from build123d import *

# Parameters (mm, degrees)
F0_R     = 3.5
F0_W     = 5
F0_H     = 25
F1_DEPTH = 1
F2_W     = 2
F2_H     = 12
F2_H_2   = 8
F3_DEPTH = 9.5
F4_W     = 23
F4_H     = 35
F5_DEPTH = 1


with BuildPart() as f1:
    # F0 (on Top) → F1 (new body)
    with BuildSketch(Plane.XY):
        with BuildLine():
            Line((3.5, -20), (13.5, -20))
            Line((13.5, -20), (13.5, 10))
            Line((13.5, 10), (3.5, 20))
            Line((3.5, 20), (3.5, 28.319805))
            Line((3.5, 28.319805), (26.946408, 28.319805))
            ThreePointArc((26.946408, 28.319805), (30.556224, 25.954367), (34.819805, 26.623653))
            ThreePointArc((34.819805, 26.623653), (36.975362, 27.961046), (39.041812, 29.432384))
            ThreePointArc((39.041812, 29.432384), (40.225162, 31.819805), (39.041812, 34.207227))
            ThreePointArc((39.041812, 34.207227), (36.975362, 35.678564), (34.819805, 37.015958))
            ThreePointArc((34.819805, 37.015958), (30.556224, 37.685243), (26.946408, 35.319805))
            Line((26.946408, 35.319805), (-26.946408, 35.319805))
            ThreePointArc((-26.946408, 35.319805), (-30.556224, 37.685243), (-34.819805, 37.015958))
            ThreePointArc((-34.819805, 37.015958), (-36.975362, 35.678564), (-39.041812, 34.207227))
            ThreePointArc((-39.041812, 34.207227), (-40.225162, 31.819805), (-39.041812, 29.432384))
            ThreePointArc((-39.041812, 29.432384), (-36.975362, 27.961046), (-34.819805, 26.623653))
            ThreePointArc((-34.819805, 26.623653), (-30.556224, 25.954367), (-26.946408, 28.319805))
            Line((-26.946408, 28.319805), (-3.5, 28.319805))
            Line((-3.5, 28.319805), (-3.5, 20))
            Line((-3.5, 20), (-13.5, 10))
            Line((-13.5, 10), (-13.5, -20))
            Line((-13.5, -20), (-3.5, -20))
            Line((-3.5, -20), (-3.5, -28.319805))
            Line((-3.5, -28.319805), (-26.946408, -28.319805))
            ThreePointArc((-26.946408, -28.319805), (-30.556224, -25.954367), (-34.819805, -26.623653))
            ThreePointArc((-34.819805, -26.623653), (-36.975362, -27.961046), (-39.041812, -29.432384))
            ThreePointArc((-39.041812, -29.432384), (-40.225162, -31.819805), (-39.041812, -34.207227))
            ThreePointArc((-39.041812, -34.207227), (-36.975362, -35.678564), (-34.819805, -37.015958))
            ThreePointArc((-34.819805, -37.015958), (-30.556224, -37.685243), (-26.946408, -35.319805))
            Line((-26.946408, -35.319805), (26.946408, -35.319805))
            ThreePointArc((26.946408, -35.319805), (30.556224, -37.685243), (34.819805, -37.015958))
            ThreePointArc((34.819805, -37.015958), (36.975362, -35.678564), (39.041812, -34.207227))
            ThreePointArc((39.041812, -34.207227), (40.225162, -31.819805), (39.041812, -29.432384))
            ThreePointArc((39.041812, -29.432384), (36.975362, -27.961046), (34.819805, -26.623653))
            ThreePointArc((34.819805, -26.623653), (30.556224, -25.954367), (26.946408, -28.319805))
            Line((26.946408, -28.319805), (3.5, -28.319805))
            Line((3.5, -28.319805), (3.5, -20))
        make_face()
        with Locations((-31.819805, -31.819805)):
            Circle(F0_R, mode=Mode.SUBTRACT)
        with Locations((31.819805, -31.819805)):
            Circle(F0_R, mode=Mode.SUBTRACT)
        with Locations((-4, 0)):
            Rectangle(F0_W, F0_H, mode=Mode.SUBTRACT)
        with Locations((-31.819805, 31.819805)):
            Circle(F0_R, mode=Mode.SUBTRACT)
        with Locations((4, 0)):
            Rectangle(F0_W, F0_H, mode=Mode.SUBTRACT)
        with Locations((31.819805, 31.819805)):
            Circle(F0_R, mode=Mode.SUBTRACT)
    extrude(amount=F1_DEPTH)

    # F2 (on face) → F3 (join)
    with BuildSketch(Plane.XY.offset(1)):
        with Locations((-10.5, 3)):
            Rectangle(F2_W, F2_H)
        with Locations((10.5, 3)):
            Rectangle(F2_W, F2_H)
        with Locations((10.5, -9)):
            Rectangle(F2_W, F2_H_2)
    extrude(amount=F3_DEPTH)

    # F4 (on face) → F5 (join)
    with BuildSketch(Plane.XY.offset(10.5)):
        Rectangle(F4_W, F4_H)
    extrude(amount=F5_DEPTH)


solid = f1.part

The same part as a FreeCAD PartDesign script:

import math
import FreeCAD as App
import Part
import Sketcher

V = App.Vector
Q = App.Units.Quantity

doc = App.newDocument("Part")
body = doc.addObject("PartDesign::Body", "Body")

# Sketch on XY plane
sketch1 = body.newObject("Sketcher::SketchObject", "Sketch")
sketch1.AttachmentSupport = (doc.getObject("XY_Plane"), [""])
sketch1.MapMode = "FlatFace"
sketch1.addGeometry(Part.LineSegment(V(3.5, -20, 0), V(13.5, -20, 0)), False)
sketch1.addGeometry(Part.LineSegment(V(13.5, -20, 0), V(13.5, 10, 0)), False)
sketch1.addGeometry(Part.LineSegment(V(13.5, 10, 0), V(3.5, 20, 0)), False)
sketch1.addGeometry(Part.LineSegment(V(3.5, 20, 0), V(3.5, 28.3, 0)), False)
sketch1.addGeometry(Part.LineSegment(V(3.5, 28.3, 0), V(26.9, 28.3, 0)), False)
sketch1.addGeometry(Part.ArcOfCircle(Part.Circle(V(31.8, 31.8, 0), V(0, 0, 1), 6), math.radians(-144), math.radians(-60)), False)
sketch1.addGeometry(Part.ArcOfCircle(Part.Circle(V(14.8, 61.3, 0), V(0, 0, 1), 40), math.radians(-60), math.radians(-52.73)), False)
sketch1.addGeometry(Part.ArcOfCircle(Part.Circle(V(37.2, 31.8, 0), V(0, 0, 1), 3), math.radians(-53), math.radians(53)), False)
sketch1.addGeometry(Part.ArcOfCircle(Part.Circle(V(14.8, 2.4, 0), V(0, 0, 1), 40), math.radians(52.73), math.radians(60)), False)
sketch1.addGeometry(Part.ArcOfCircle(Part.Circle(V(31.8, 31.8, 0), V(0, 0, 1), 6), math.radians(60), math.radians(144)), False)
sketch1.addGeometry(Part.LineSegment(V(26.9, 35.3, 0), V(-26.9, 35.3, 0)), False)
sketch1.addGeometry(Part.ArcOfCircle(Part.Circle(V(-31.8, 31.8, 0), V(0, 0, 1), 6), math.radians(36), math.radians(120)), False)
sketch1.addGeometry(Part.ArcOfCircle(Part.Circle(V(-14.8, 2.4, 0), V(0, 0, 1), 40), math.radians(120), math.radians(127.27)), False)
sketch1.addGeometry(Part.ArcOfCircle(Part.Circle(V(-37.2, 31.8, 0), V(0, 0, 1), 3), math.radians(127), math.radians(233)), False)
sketch1.addGeometry(Part.ArcOfCircle(Part.Circle(V(-14.8, 61.3, 0), V(0, 0, 1), 40), math.radians(-127.27), math.radians(-120)), False)
sketch1.addGeometry(Part.ArcOfCircle(Part.Circle(V(-31.8, 31.8, 0), V(0, 0, 1), 6), math.radians(-120), math.radians(-36)), False)
sketch1.addGeometry(Part.LineSegment(V(-26.9, 28.3, 0), V(-3.5, 28.3, 0)), False)
sketch1.addGeometry(Part.LineSegment(V(-3.5, 28.3, 0), V(-3.5, 20, 0)), False)
sketch1.addGeometry(Part.LineSegment(V(-3.5, 20, 0), V(-13.5, 10, 0)), False)
sketch1.addGeometry(Part.LineSegment(V(-13.5, 10, 0), V(-13.5, -20, 0)), False)
sketch1.addGeometry(Part.LineSegment(V(-13.5, -20, 0), V(-3.5, -20, 0)), False)
sketch1.addGeometry(Part.LineSegment(V(-3.5, -20, 0), V(-3.5, -28.3, 0)), False)
sketch1.addGeometry(Part.LineSegment(V(-3.5, -28.3, 0), V(-26.9, -28.3, 0)), False)
sketch1.addGeometry(Part.ArcOfCircle(Part.Circle(V(-31.8, -31.8, 0), V(0, 0, 1), 6), math.radians(36), math.radians(120)), False)
sketch1.addGeometry(Part.ArcOfCircle(Part.Circle(V(-14.8, -61.3, 0), V(0, 0, 1), 40), math.radians(120), math.radians(127.27)), False)
sketch1.addGeometry(Part.ArcOfCircle(Part.Circle(V(-37.2, -31.8, 0), V(0, 0, 1), 3), math.radians(127), math.radians(233)), False)
sketch1.addGeometry(Part.ArcOfCircle(Part.Circle(V(-14.8, -2.4, 0), V(0, 0, 1), 40), math.radians(-127.27), math.radians(-120)), False)
sketch1.addGeometry(Part.ArcOfCircle(Part.Circle(V(-31.8, -31.8, 0), V(0, 0, 1), 6), math.radians(-120), math.radians(-36)), False)
sketch1.addGeometry(Part.LineSegment(V(-26.9, -35.3, 0), V(26.9, -35.3, 0)), False)
sketch1.addGeometry(Part.ArcOfCircle(Part.Circle(V(31.8, -31.8, 0), V(0, 0, 1), 6), math.radians(-144), math.radians(-60)), False)
sketch1.addGeometry(Part.ArcOfCircle(Part.Circle(V(14.8, -2.4, 0), V(0, 0, 1), 40), math.radians(-60), math.radians(-52.73)), False)
sketch1.addGeometry(Part.ArcOfCircle(Part.Circle(V(37.2, -31.8, 0), V(0, 0, 1), 3), math.radians(-53), math.radians(53)), False)
sketch1.addGeometry(Part.ArcOfCircle(Part.Circle(V(14.8, -61.3, 0), V(0, 0, 1), 40), math.radians(52.73), math.radians(60)), False)
sketch1.addGeometry(Part.ArcOfCircle(Part.Circle(V(31.8, -31.8, 0), V(0, 0, 1), 6), math.radians(60), math.radians(144)), False)
sketch1.addGeometry(Part.LineSegment(V(26.9, -28.3, 0), V(3.5, -28.3, 0)), False)
sketch1.addGeometry(Part.LineSegment(V(3.5, -28.3, 0), V(3.5, -20, 0)), False)
sketch1.addGeometry(Part.Circle(V(-31.8, -31.8, 0), V(0, 0, 1), 3.5), False)
sketch1.addGeometry(Part.Circle(V(31.8, -31.8, 0), V(0, 0, 1), 3.5), False)
sketch1.addGeometry(Part.LineSegment(V(-1.5, -12.5, 0), V(-6.5, -12.5, 0)), False)
sketch1.addGeometry(Part.LineSegment(V(-6.5, -12.5, 0), V(-6.5, 12.5, 0)), False)
sketch1.addGeometry(Part.LineSegment(V(-6.5, 12.5, 0), V(-1.5, 12.5, 0)), False)
sketch1.addGeometry(Part.LineSegment(V(-1.5, 12.5, 0), V(-1.5, -12.5, 0)), False)
sketch1.addGeometry(Part.Circle(V(-31.8, 31.8, 0), V(0, 0, 1), 3.5), False)
sketch1.addGeometry(Part.LineSegment(V(6.5, -12.5, 0), V(1.5, -12.5, 0)), False)
sketch1.addGeometry(Part.LineSegment(V(1.5, -12.5, 0), V(1.5, 12.5, 0)), False)
sketch1.addGeometry(Part.LineSegment(V(1.5, 12.5, 0), V(6.5, 12.5, 0)), False)
sketch1.addGeometry(Part.LineSegment(V(6.5, 12.5, 0), V(6.5, -12.5, 0)), False)
sketch1.addGeometry(Part.Circle(V(31.8, 31.8, 0), V(0, 0, 1), 3.5), False)
sketch1.addConstraint(Sketcher.Constraint("Coincident", 0, 2, 1, 1))
sketch1.addConstraint(Sketcher.Constraint("Coincident", 1, 2, 2, 1))
sketch1.addConstraint(Sketcher.Constraint("Coincident", 2, 2, 3, 1))
sketch1.addConstraint(Sketcher.Constraint("Coincident", 3, 2, 4, 1))
sketch1.addConstraint(Sketcher.Constraint("Coincident", 4, 2, 5, 1))
sketch1.addConstraint(Sketcher.Constraint("Tangent", 5, 2, 6, 1))
sketch1.addConstraint(Sketcher.Constraint("Tangent", 6, 2, 7, 1))
sketch1.addConstraint(Sketcher.Constraint("Tangent", 7, 2, 8, 1))
sketch1.addConstraint(Sketcher.Constraint("Tangent", 8, 2, 9, 1))
sketch1.addConstraint(Sketcher.Constraint("Coincident", 9, 2, 10, 1))
sketch1.addConstraint(Sketcher.Constraint("Coincident", 10, 2, 11, 1))
sketch1.addConstraint(Sketcher.Constraint("Tangent", 11, 2, 12, 1))
sketch1.addConstraint(Sketcher.Constraint("Tangent", 12, 2, 13, 1))
sketch1.addConstraint(Sketcher.Constraint("Tangent", 13, 2, 14, 1))
sketch1.addConstraint(Sketcher.Constraint("Tangent", 14, 2, 15, 1))
sketch1.addConstraint(Sketcher.Constraint("Coincident", 15, 2, 16, 1))
sketch1.addConstraint(Sketcher.Constraint("Coincident", 16, 2, 17, 1))
sketch1.addConstraint(Sketcher.Constraint("Coincident", 17, 2, 18, 1))
sketch1.addConstraint(Sketcher.Constraint("Coincident", 18, 2, 19, 1))
sketch1.addConstraint(Sketcher.Constraint("Coincident", 19, 2, 20, 1))
sketch1.addConstraint(Sketcher.Constraint("Coincident", 20, 2, 21, 1))
sketch1.addConstraint(Sketcher.Constraint("Coincident", 21, 2, 22, 1))
sketch1.addConstraint(Sketcher.Constraint("Coincident", 22, 2, 23, 1))
sketch1.addConstraint(Sketcher.Constraint("Tangent", 23, 2, 24, 1))
sketch1.addConstraint(Sketcher.Constraint("Tangent", 24, 2, 25, 1))
sketch1.addConstraint(Sketcher.Constraint("Tangent", 25, 2, 26, 1))
sketch1.addConstraint(Sketcher.Constraint("Tangent", 26, 2, 27, 1))
sketch1.addConstraint(Sketcher.Constraint("Coincident", 27, 2, 28, 1))
sketch1.addConstraint(Sketcher.Constraint("Coincident", 28, 2, 29, 1))
sketch1.addConstraint(Sketcher.Constraint("Tangent", 29, 2, 30, 1))
sketch1.addConstraint(Sketcher.Constraint("Tangent", 30, 2, 31, 1))
sketch1.addConstraint(Sketcher.Constraint("Tangent", 31, 2, 32, 1))
sketch1.addConstraint(Sketcher.Constraint("Tangent", 32, 2, 33, 1))
sketch1.addConstraint(Sketcher.Constraint("Coincident", 33, 2, 34, 1))
sketch1.addConstraint(Sketcher.Constraint("Coincident", 34, 2, 35, 1))
sketch1.addConstraint(Sketcher.Constraint("Coincident", 35, 2, 0, 1))
sketch1.addConstraint(Sketcher.Constraint("Coincident", 38, 2, 39, 1))
sketch1.addConstraint(Sketcher.Constraint("Coincident", 39, 2, 40, 1))
sketch1.addConstraint(Sketcher.Constraint("Coincident", 40, 2, 41, 1))
sketch1.addConstraint(Sketcher.Constraint("Coincident", 41, 2, 38, 1))
sketch1.addConstraint(Sketcher.Constraint("Coincident", 43, 2, 44, 1))
sketch1.addConstraint(Sketcher.Constraint("Coincident", 44, 2, 45, 1))
sketch1.addConstraint(Sketcher.Constraint("Coincident", 45, 2, 46, 1))
sketch1.addConstraint(Sketcher.Constraint("Coincident", 46, 2, 43, 1))
sketch1.addConstraint(Sketcher.Constraint("Horizontal", 0))
sketch1.addConstraint(Sketcher.Constraint("Vertical", 1))
sketch1.addConstraint(Sketcher.Constraint("Vertical", 3))
sketch1.addConstraint(Sketcher.Constraint("Horizontal", 4))
sketch1.addConstraint(Sketcher.Constraint("Horizontal", 10))
sketch1.addConstraint(Sketcher.Constraint("Horizontal", 16))
sketch1.addConstraint(Sketcher.Constraint("Vertical", 17))
sketch1.addConstraint(Sketcher.Constraint("Vertical", 19))
sketch1.addConstraint(Sketcher.Constraint("Horizontal", 20))
sketch1.addConstraint(Sketcher.Constraint("Vertical", 21))
sketch1.addConstraint(Sketcher.Constraint("Horizontal", 22))
sketch1.addConstraint(Sketcher.Constraint("Horizontal", 28))
sketch1.addConstraint(Sketcher.Constraint("Horizontal", 34))
sketch1.addConstraint(Sketcher.Constraint("Vertical", 35))
sketch1.addConstraint(Sketcher.Constraint("Horizontal", 38))
sketch1.addConstraint(Sketcher.Constraint("Vertical", 39))
sketch1.addConstraint(Sketcher.Constraint("Horizontal", 40))
sketch1.addConstraint(Sketcher.Constraint("Vertical", 41))
sketch1.addConstraint(Sketcher.Constraint("Horizontal", 43))
sketch1.addConstraint(Sketcher.Constraint("Vertical", 44))
sketch1.addConstraint(Sketcher.Constraint("Horizontal", 45))
sketch1.addConstraint(Sketcher.Constraint("Vertical", 46))
sketch1.addConstraint(Sketcher.Constraint("Coincident", 9, 3, 5, 3))
sketch1.addConstraint(Sketcher.Constraint("Coincident", 15, 3, 11, 3))
sketch1.addConstraint(Sketcher.Constraint("Coincident", 27, 3, 23, 3))
sketch1.addConstraint(Sketcher.Constraint("Coincident", 33, 3, 29, 3))
sketch1.addConstraint(Sketcher.Constraint("Coincident", 36, 3, 23, 3))
sketch1.addConstraint(Sketcher.Constraint("Coincident", 37, 3, 29, 3))
sketch1.addConstraint(Sketcher.Constraint("Coincident", 42, 3, 11, 3))
sketch1.addConstraint(Sketcher.Constraint("Coincident", 47, 3, 5, 3))
sketch1.addConstraint(Sketcher.Constraint("Equal", 5, 9))
sketch1.addConstraint(Sketcher.Constraint("Equal", 9, 11))
sketch1.addConstraint(Sketcher.Constraint("Equal", 8, 12))
sketch1.addConstraint(Sketcher.Constraint("Equal", 7, 13))
sketch1.addConstraint(Sketcher.Constraint("Equal", 6, 14))
sketch1.addConstraint(Sketcher.Constraint("Equal", 11, 15))
sketch1.addConstraint(Sketcher.Constraint("Equal", 15, 23))
sketch1.addConstraint(Sketcher.Constraint("Equal", 14, 24))
sketch1.addConstraint(Sketcher.Constraint("Equal", 13, 25))
sketch1.addConstraint(Sketcher.Constraint("Equal", 12, 26))
sketch1.addConstraint(Sketcher.Constraint("Equal", 23, 27))
sketch1.addConstraint(Sketcher.Constraint("Equal", 27, 29))
sketch1.addConstraint(Sketcher.Constraint("Equal", 26, 30))
sketch1.addConstraint(Sketcher.Constraint("Equal", 25, 31))
sketch1.addConstraint(Sketcher.Constraint("Equal", 24, 32))
sketch1.addConstraint(Sketcher.Constraint("Equal", 29, 33))
sketch1.addConstraint(Sketcher.Constraint("Equal", 36, 37))
sketch1.addConstraint(Sketcher.Constraint("Equal", 37, 42))
sketch1.addConstraint(Sketcher.Constraint("Equal", 42, 47))
sketch1.addConstraint(Sketcher.Constraint("Symmetric", 5, 3, 23, 3, -1, 1))
sketch1.addConstraint(Sketcher.Constraint("Symmetric", 7, 3, 25, 3, -1, 1))
sketch1.addConstraint(Sketcher.Constraint("Symmetric", 11, 3, 29, 3, -1, 1))
sketch1.addConstraint(Sketcher.Constraint("Symmetric", 13, 3, 31, 3, -1, 1))
sketch1.addConstraint(Sketcher.Constraint("Symmetric", 2, 2, 20, 2, -1, 1))
sketch1.addConstraint(Sketcher.Constraint("Symmetric", 16, 2, 34, 2, -1, 1))
sketch1.addConstraint(Sketcher.Constraint("Symmetric", 40, 2, 43, 2, -1, 1))
sketch1.addConstraint(Sketcher.Constraint("Symmetric", 38, 2, 45, 2, -1, 1))
sketch1.addConstraint(Sketcher.Constraint("Symmetric", 5, 3, 11, 3, -2))
sketch1.addConstraint(Sketcher.Constraint("Symmetric", 7, 3, 13, 3, -2))
sketch1.addConstraint(Sketcher.Constraint("Symmetric", 3, 2, 16, 2, -2))
sketch1.addConstraint(Sketcher.Constraint("Symmetric", 1, 2, 18, 2, -2))
sketch1.addConstraint(Sketcher.Constraint("Perpendicular", 2, 18))
sketch1.addConstraint(Sketcher.Constraint("Horizontal", 5, 3, 7, 3))
sketch1.addConstraint(Sketcher.Constraint("Horizontal", 2, 2, 17, 2))
sketch1.addConstraint(Sketcher.Constraint("Horizontal", 0, 2, 19, 2))
sketch1.addConstraint(Sketcher.Constraint("Horizontal", 22, 2, 33, 2))
sketch1.addConstraint(Sketcher.Constraint("Horizontal", 41, 2, 43, 2))
sketch1.addConstraint(Sketcher.Constraint("Vertical", 4, 2, 9, 2))
sketch1.addConstraint(Sketcher.Constraint("Vertical", 22, 2, 27, 2))
sketch1.addConstraint(Sketcher.Constraint("Diameter", 36, Q("7 mm")))
sketch1.addConstraint(Sketcher.Constraint("Radius", 5, Q("5.999999 mm")))
sketch1.addConstraint(Sketcher.Constraint("Radius", 7, Q("2.999999 mm")))
sketch1.addConstraint(Sketcher.Constraint("DistanceX", 0, 1, 0, 2, Q("10 mm")))
sketch1.addConstraint(Sketcher.Constraint("DistanceX", 38, 2, 38, 1, Q("5 mm")))
sketch1.addConstraint(Sketcher.Constraint("DistanceY", 1, 1, 1, 2, Q("30 mm")))
sketch1.addConstraint(Sketcher.Constraint("DistanceY", 39, 1, 39, 2, Q("25 mm")))
sketch1.addConstraint(Sketcher.Constraint("DistanceX", -1, 1, 0, 2, Q("13.5 mm")))
sketch1.addConstraint(Sketcher.Constraint("DistanceX", 38, 2, -1, 1, Q("6.5 mm")))
sketch1.addConstraint(Sketcher.Constraint("Radius", 6, Q("39.999873 mm")))
sketch1.addConstraint(Sketcher.Constraint("Radius", 8, Q("40.000286 mm")))
sketch1.addConstraint(Sketcher.Constraint("DistanceX", 4, 1, 4, 2, Q("23.446408 mm")))
sketch1.addConstraint(Sketcher.Constraint("DistanceY", 3, 1, 3, 2, Q("8.319805 mm")))
sketch1.addConstraint(Sketcher.Constraint("DistanceX", -1, 1, 6, 2, Q("39.041812 mm")))
sketch1.addConstraint(Sketcher.Constraint("DistanceY", -1, 1, 8, 2, Q("37.015958 mm")))
pad1 = body.newObject("PartDesign::Pad", "Pad")
pad1.Profile = sketch1
pad1.Length = 1

# Sketch on XY plane
sketch2 = body.newObject("Sketcher::SketchObject", "Sketch001")
sketch2.AttachmentSupport = (doc.getObject("XY_Plane"), [""])
sketch2.MapMode = "FlatFace"
sketch2.AttachmentOffset = App.Placement(V(0, 0, 1), App.Rotation())
sketch2.addGeometry(Part.LineSegment(V(-11.5, 9, 0), V(-11.5, -3, 0)), False)
sketch2.addGeometry(Part.LineSegment(V(-11.5, -3, 0), V(-9.5, -3, 0)), False)
sketch2.addGeometry(Part.LineSegment(V(-9.5, -3, 0), V(-9.5, 9, 0)), False)
sketch2.addGeometry(Part.LineSegment(V(-9.5, 9, 0), V(-11.5, 9, 0)), False)
sketch2.addGeometry(Part.LineSegment(V(9.5, 9, 0), V(9.5, -3, 0)), False)
sketch2.addGeometry(Part.LineSegment(V(9.5, -3, 0), V(11.5, -3, 0)), False)
sketch2.addGeometry(Part.LineSegment(V(11.5, -3, 0), V(11.5, 9, 0)), False)
sketch2.addGeometry(Part.LineSegment(V(11.5, 9, 0), V(9.5, 9, 0)), False)
sketch2.addGeometry(Part.LineSegment(V(9.5, -5, 0), V(9.5, -13, 0)), False)
sketch2.addGeometry(Part.LineSegment(V(9.5, -13, 0), V(11.5, -13, 0)), False)
sketch2.addGeometry(Part.LineSegment(V(11.5, -13, 0), V(11.5, -5, 0)), False)
sketch2.addGeometry(Part.LineSegment(V(11.5, -5, 0), V(9.5, -5, 0)), False)
sketch2.addConstraint(Sketcher.Constraint("Coincident", 0, 2, 1, 1))
sketch2.addConstraint(Sketcher.Constraint("Coincident", 1, 2, 2, 1))
sketch2.addConstraint(Sketcher.Constraint("Coincident", 2, 2, 3, 1))
sketch2.addConstraint(Sketcher.Constraint("Coincident", 3, 2, 0, 1))
sketch2.addConstraint(Sketcher.Constraint("Coincident", 4, 2, 5, 1))
sketch2.addConstraint(Sketcher.Constraint("Coincident", 5, 2, 6, 1))
sketch2.addConstraint(Sketcher.Constraint("Coincident", 6, 2, 7, 1))
sketch2.addConstraint(Sketcher.Constraint("Coincident", 7, 2, 4, 1))
sketch2.addConstraint(Sketcher.Constraint("Coincident", 8, 2, 9, 1))
sketch2.addConstraint(Sketcher.Constraint("Coincident", 9, 2, 10, 1))
sketch2.addConstraint(Sketcher.Constraint("Coincident", 10, 2, 11, 1))
sketch2.addConstraint(Sketcher.Constraint("Coincident", 11, 2, 8, 1))
sketch2.addConstraint(Sketcher.Constraint("Vertical", 0))
sketch2.addConstraint(Sketcher.Constraint("Horizontal", 1))
sketch2.addConstraint(Sketcher.Constraint("Vertical", 2))
sketch2.addConstraint(Sketcher.Constraint("Horizontal", 3))
sketch2.addConstraint(Sketcher.Constraint("Vertical", 4))
sketch2.addConstraint(Sketcher.Constraint("Horizontal", 5))
sketch2.addConstraint(Sketcher.Constraint("Vertical", 6))
sketch2.addConstraint(Sketcher.Constraint("Horizontal", 7))
sketch2.addConstraint(Sketcher.Constraint("Vertical", 8))
sketch2.addConstraint(Sketcher.Constraint("Horizontal", 9))
sketch2.addConstraint(Sketcher.Constraint("Vertical", 10))
sketch2.addConstraint(Sketcher.Constraint("Horizontal", 11))
sketch2.addConstraint(Sketcher.Constraint("Symmetric", 1, 2, 4, 2, -2))
sketch2.addConstraint(Sketcher.Constraint("Symmetric", 3, 2, 6, 2, -2))
sketch2.addConstraint(Sketcher.Constraint("Vertical", 7, 2, 8, 2))
sketch2.addConstraint(Sketcher.Constraint("Vertical", 6, 2, 9, 2))
sketch2.addConstraint(Sketcher.Constraint("DistanceX", 1, 1, 1, 2, Q("2 mm")))
sketch2.addConstraint(Sketcher.Constraint("DistanceY", 0, 2, 0, 1, Q("12 mm")))
sketch2.addConstraint(Sketcher.Constraint("DistanceY", 8, 2, 8, 1, Q("8 mm")))
sketch2.addConstraint(Sketcher.Constraint("DistanceY", 0, 2, -1, 1, Q("3 mm")))
sketch2.addConstraint(Sketcher.Constraint("DistanceY", 8, 2, -1, 1, Q("13 mm")))
sketch2.addConstraint(Sketcher.Constraint("DistanceX", 1, 2, 4, 2, Q("19 mm")))
pad2 = body.newObject("PartDesign::Pad", "Pad001")
pad2.Profile = sketch2
pad2.Length = 9.5

# Sketch on XY plane
sketch3 = body.newObject("Sketcher::SketchObject", "Sketch002")
sketch3.AttachmentSupport = (doc.getObject("XY_Plane"), [""])
sketch3.MapMode = "FlatFace"
sketch3.AttachmentOffset = App.Placement(V(0, 0, 10.5), App.Rotation())
sketch3.addGeometry(Part.LineSegment(V(-12, 18, 0), V(-12, -18, 0)), False)
sketch3.addGeometry(Part.LineSegment(V(-12, -18, 0), V(12, -18, 0)), False)
sketch3.addGeometry(Part.LineSegment(V(12, -18, 0), V(12, 18, 0)), False)
sketch3.addGeometry(Part.LineSegment(V(12, 18, 0), V(-12, 18, 0)), False)
sketch3.addConstraint(Sketcher.Constraint("Coincident", 0, 2, 1, 1))
sketch3.addConstraint(Sketcher.Constraint("Coincident", 1, 2, 2, 1))
sketch3.addConstraint(Sketcher.Constraint("Coincident", 2, 2, 3, 1))
sketch3.addConstraint(Sketcher.Constraint("Coincident", 3, 2, 0, 1))
sketch3.addConstraint(Sketcher.Constraint("Vertical", 0))
sketch3.addConstraint(Sketcher.Constraint("Horizontal", 1))
sketch3.addConstraint(Sketcher.Constraint("Vertical", 2))
sketch3.addConstraint(Sketcher.Constraint("Horizontal", 3))
sketch3.addConstraint(Sketcher.Constraint("Symmetric", 0, 2, 2, 2, -1, 1))
sketch3.addConstraint(Sketcher.Constraint("DistanceX", 1, 1, 1, 2, Q("23 mm")))
sketch3.addConstraint(Sketcher.Constraint("DistanceY", 0, 2, 0, 1, Q("35 mm")))
pad3 = body.newObject("PartDesign::Pad", "Pad002")
pad3.Profile = sketch3
pad3.Length = 1

doc.recompute()
